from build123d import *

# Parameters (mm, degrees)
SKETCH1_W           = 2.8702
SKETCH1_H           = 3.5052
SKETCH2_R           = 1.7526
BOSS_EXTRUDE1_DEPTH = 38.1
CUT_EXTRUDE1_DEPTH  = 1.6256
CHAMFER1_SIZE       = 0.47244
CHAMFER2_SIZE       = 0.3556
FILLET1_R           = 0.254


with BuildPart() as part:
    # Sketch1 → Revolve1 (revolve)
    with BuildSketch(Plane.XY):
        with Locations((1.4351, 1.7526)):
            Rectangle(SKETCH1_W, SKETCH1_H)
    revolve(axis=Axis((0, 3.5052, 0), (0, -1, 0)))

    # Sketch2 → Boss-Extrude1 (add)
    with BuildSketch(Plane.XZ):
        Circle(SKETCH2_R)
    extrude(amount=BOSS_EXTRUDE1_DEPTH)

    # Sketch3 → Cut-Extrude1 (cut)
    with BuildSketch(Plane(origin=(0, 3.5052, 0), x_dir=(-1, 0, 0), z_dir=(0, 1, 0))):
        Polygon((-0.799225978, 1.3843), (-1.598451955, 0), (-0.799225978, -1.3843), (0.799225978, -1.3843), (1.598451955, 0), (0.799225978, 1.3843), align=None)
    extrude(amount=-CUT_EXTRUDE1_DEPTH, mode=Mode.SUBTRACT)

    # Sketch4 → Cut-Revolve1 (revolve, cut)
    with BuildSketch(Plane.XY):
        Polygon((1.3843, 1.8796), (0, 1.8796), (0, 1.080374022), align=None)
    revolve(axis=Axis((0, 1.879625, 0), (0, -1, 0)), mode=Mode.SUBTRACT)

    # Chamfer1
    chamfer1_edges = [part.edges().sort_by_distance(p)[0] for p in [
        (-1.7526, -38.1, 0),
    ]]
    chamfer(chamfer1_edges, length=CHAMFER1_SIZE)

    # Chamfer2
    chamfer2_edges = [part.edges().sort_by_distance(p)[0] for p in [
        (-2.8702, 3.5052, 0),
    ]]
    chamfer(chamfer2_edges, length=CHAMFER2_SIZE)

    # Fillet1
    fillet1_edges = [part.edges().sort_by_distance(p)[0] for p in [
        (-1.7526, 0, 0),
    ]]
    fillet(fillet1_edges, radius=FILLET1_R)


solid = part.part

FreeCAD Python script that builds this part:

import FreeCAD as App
import Part
import Sketcher
Q = App.Units.Quantity


def edges_at(feature, points):
    """Names of the edges that pass closest to the given points."""
    edges = feature.Shape.Edges
    near = lambda p: min(range(len(edges)), key=lambda i: edges[i].distToShape(Part.Vertex(*p))[0])
    return sorted({f"Edge{near(p) + 1}" for p in points})

doc = App.newDocument("Part")
body = doc.addObject("PartDesign::Body", "Body")

# Sketch on XY plane
sketch1 = body.newObject("Sketcher::SketchObject", "Sketch")
sketch1.AttachmentSupport = (doc.getObject("XY_Plane"), [""])
sketch1.MapMode = "FlatFace"
sketch1.addGeometry([
    Part.LineSegment(App.Vector(0, 3.5, 0), App.Vector(0, 0, 0)),
    Part.LineSegment(App.Vector(0, 0, 0), App.Vector(2.9, 0, 0)),
    Part.LineSegment(App.Vector(2.9, 0, 0), App.Vector(2.9, 3.5, 0)),
    Part.LineSegment(App.Vector(2.9, 3.5, 0), App.Vector(0, 3.5, 0)),
], False)
sketch1.addConstraint([
    Sketcher.Constraint("Coincident", 0, 2, 1, 1),
    Sketcher.Constraint("Coincident", 1, 2, 2, 1),
    Sketcher.Constraint("Coincident", 2, 2, 3, 1),
    Sketcher.Constraint("Coincident", 3, 2, 0, 1),
    Sketcher.Constraint("Vertical", 0),
    Sketcher.Constraint("Horizontal", 1),
    Sketcher.Constraint("Vertical", 2),
    Sketcher.Constraint("Horizontal", 3),
    Sketcher.Constraint("Coincident", 0, 2, -1, 1),
    Sketcher.Constraint("DistanceX", 1, 1, 1, 2, Q("0.113 in")),
    Sketcher.Constraint("DistanceY", 0, 2, 0, 1, Q("0.138 in")),
])
revolution = body.newObject("PartDesign::Revolution", "Revolution")
revolution.Profile = sketch1
revolution.ReferenceAxis = (sketch1, ["V_Axis"])
revolution.Angle = 360

# Sketch on XZ plane
sketch2 = body.newObject("Sketcher::SketchObject", "Sketch001")
sketch2.AttachmentSupport = (doc.getObject("XZ_Plane"), [""])
sketch2.MapMode = "FlatFace"
sketch2.addGeometry(Part.Circle(App.Vector(0, 0, 0), App.Vector(0, 0, 1), 1.8), False)
sketch2.addConstraint([
    Sketcher.Constraint("Coincident", 0, 3, -1, 1),
    Sketcher.Constraint("Diameter", 0, Q("0.138 in")),
])
pad1 = body.newObject("PartDesign::Pad", "Pad")
pad1.Profile = sketch2
pad1.Length = Q("1.5 in")

# Sketch on XZ plane
sketch3 = body.newObject("Sketcher::SketchObject", "Sketch002")
sketch3.AttachmentSupport = (doc.getObject("XZ_Plane"), [""])
sketch3.MapMode = "FlatFace"
sketch3.AttachmentOffset = App.Placement(App.Vector(0, 0, -0.138 * 25.4), App.Rotation())
sketch3.addGeometry([
    Part.LineSegment(App.Vector(0.8, 1.4, 0), App.Vector(1.6, 0, 0)),  # 0
    Part.LineSegment(App.Vector(1.6, 0, 0), App.Vector(0.8, -1.4, 0)),  # 1
    Part.LineSegment(App.Vector(0.8, -1.4, 0), App.Vector(-0.8, -1.4, 0)),  # 2
    Part.LineSegment(App.Vector(-0.8, -1.4, 0), App.Vector(-1.6, 0, 0)),  # 3
    Part.LineSegment(App.Vector(-1.6, 0, 0), App.Vector(-0.8, 1.4, 0)),  # 4
    Part.LineSegment(App.Vector(-0.8, 1.4, 0), App.Vector(0.8, 1.4, 0)),  # 5
], False)
sketch3.addConstraint([
    Sketcher.Constraint("Coincident", 0, 2, 1, 1),
    Sketcher.Constraint("Coincident", 1, 2, 2, 1),
    Sketcher.Constraint("Coincident", 2, 2, 3, 1),
    Sketcher.Constraint("Coincident", 3, 2, 4, 1),
    Sketcher.Constraint("Coincident", 4, 2, 5, 1),
    Sketcher.Constraint("Coincident", 5, 2, 0, 1),
    Sketcher.Constraint("Horizontal", 2),
    Sketcher.Constraint("Horizontal", 5),
    Sketcher.Constraint("Symmetric", 0, 2, 3, 2, -1, 1),
    Sketcher.Constraint("Symmetric", 1, 2, 4, 2, -1, 1),
    Sketcher.Constraint("PointOnObject", 0, 2, -1),
    Sketcher.Constraint("Parallel", 0, 3),
    Sketcher.Constraint("Vertical", 2, 2, 4, 2),
    Sketcher.Constraint("Angle", 0, Q("-60 deg")),
    Sketcher.Constraint("DistanceY", 2, 2, 4, 2, Q("0.109 in")),
    Sketcher.Constraint("DistanceX", 2, 2, 2, 1, 1.598452),
])
pocket1 = body.newObject("PartDesign::Pocket", "Pocket")
pocket1.Profile = sketch3
pocket1.Length = Q("0.064 in")
pocket1.Reversed = True

# Sketch on XY plane
sketch4 = body.newObject("Sketcher::SketchObject", "Sketch003")
sketch4.AttachmentSupport = (doc.getObject("XY_Plane"), [""])
sketch4.MapMode = "FlatFace"
sketch4.addGeometry([
    Part.LineSegment(App.Vector(1.4, 1.9, 0), App.Vector(0, 1.9, 0)),
    Part.LineSegment(App.Vector(0, 1.9, 0), App.Vector(0, 1.1, 0)),
    Part.LineSegment(App.Vector(0, 1.1, 0), App.Vector(1.4, 1.9, 0)),
], False)
sketch4.addConstraint([
    Sketcher.Constraint("Coincident", 0, 2, 1, 1),
    Sketcher.Constraint("Coincident", 1, 2, 2, 1),
    Sketcher.Constraint("Coincident", 2, 2, 0, 1),
    Sketcher.Constraint("Horizontal", 0),
    Sketcher.Constraint("Vertical", 1),
    Sketcher.Constraint("PointOnObject", 0, 2, -2),
    Sketcher.Constraint("Angle", 2, Q("30 deg")),
    Sketcher.Constraint("DistanceX", 0, 2, 0, 1, Q("0.0545 in")),
    Sketcher.Constraint("DistanceY", -1, 1, 0, 2, Q("0.074 in")),
])
groove = body.newObject("PartDesign::Groove", "Groove")
groove.Profile = sketch4
groove.ReferenceAxis = (sketch4, ["V_Axis"])
groove.Angle = 360
doc.recompute()

chamfer = body.newObject("PartDesign::Chamfer", "Chamfer")
chamfer.Base = (groove, edges_at(groove, [(-1.753, -38.1, 0)]))
chamfer.Size = Q("0.0186 in")
doc.recompute()

chamfer2 = body.newObject("PartDesign::Chamfer", "Chamfer001")
chamfer2.Base = (chamfer, edges_at(chamfer, [(-2.87, 3.505, 0)]))
chamfer2.Size = Q("0.014 in")
doc.recompute()

fillet = body.newObject("PartDesign::Fillet", "Fillet")
fillet.Base = (chamfer2, edges_at(chamfer2, [(-1.753, 0, 0)]))
fillet.Radius = Q("0.01 in")

doc.recompute()
